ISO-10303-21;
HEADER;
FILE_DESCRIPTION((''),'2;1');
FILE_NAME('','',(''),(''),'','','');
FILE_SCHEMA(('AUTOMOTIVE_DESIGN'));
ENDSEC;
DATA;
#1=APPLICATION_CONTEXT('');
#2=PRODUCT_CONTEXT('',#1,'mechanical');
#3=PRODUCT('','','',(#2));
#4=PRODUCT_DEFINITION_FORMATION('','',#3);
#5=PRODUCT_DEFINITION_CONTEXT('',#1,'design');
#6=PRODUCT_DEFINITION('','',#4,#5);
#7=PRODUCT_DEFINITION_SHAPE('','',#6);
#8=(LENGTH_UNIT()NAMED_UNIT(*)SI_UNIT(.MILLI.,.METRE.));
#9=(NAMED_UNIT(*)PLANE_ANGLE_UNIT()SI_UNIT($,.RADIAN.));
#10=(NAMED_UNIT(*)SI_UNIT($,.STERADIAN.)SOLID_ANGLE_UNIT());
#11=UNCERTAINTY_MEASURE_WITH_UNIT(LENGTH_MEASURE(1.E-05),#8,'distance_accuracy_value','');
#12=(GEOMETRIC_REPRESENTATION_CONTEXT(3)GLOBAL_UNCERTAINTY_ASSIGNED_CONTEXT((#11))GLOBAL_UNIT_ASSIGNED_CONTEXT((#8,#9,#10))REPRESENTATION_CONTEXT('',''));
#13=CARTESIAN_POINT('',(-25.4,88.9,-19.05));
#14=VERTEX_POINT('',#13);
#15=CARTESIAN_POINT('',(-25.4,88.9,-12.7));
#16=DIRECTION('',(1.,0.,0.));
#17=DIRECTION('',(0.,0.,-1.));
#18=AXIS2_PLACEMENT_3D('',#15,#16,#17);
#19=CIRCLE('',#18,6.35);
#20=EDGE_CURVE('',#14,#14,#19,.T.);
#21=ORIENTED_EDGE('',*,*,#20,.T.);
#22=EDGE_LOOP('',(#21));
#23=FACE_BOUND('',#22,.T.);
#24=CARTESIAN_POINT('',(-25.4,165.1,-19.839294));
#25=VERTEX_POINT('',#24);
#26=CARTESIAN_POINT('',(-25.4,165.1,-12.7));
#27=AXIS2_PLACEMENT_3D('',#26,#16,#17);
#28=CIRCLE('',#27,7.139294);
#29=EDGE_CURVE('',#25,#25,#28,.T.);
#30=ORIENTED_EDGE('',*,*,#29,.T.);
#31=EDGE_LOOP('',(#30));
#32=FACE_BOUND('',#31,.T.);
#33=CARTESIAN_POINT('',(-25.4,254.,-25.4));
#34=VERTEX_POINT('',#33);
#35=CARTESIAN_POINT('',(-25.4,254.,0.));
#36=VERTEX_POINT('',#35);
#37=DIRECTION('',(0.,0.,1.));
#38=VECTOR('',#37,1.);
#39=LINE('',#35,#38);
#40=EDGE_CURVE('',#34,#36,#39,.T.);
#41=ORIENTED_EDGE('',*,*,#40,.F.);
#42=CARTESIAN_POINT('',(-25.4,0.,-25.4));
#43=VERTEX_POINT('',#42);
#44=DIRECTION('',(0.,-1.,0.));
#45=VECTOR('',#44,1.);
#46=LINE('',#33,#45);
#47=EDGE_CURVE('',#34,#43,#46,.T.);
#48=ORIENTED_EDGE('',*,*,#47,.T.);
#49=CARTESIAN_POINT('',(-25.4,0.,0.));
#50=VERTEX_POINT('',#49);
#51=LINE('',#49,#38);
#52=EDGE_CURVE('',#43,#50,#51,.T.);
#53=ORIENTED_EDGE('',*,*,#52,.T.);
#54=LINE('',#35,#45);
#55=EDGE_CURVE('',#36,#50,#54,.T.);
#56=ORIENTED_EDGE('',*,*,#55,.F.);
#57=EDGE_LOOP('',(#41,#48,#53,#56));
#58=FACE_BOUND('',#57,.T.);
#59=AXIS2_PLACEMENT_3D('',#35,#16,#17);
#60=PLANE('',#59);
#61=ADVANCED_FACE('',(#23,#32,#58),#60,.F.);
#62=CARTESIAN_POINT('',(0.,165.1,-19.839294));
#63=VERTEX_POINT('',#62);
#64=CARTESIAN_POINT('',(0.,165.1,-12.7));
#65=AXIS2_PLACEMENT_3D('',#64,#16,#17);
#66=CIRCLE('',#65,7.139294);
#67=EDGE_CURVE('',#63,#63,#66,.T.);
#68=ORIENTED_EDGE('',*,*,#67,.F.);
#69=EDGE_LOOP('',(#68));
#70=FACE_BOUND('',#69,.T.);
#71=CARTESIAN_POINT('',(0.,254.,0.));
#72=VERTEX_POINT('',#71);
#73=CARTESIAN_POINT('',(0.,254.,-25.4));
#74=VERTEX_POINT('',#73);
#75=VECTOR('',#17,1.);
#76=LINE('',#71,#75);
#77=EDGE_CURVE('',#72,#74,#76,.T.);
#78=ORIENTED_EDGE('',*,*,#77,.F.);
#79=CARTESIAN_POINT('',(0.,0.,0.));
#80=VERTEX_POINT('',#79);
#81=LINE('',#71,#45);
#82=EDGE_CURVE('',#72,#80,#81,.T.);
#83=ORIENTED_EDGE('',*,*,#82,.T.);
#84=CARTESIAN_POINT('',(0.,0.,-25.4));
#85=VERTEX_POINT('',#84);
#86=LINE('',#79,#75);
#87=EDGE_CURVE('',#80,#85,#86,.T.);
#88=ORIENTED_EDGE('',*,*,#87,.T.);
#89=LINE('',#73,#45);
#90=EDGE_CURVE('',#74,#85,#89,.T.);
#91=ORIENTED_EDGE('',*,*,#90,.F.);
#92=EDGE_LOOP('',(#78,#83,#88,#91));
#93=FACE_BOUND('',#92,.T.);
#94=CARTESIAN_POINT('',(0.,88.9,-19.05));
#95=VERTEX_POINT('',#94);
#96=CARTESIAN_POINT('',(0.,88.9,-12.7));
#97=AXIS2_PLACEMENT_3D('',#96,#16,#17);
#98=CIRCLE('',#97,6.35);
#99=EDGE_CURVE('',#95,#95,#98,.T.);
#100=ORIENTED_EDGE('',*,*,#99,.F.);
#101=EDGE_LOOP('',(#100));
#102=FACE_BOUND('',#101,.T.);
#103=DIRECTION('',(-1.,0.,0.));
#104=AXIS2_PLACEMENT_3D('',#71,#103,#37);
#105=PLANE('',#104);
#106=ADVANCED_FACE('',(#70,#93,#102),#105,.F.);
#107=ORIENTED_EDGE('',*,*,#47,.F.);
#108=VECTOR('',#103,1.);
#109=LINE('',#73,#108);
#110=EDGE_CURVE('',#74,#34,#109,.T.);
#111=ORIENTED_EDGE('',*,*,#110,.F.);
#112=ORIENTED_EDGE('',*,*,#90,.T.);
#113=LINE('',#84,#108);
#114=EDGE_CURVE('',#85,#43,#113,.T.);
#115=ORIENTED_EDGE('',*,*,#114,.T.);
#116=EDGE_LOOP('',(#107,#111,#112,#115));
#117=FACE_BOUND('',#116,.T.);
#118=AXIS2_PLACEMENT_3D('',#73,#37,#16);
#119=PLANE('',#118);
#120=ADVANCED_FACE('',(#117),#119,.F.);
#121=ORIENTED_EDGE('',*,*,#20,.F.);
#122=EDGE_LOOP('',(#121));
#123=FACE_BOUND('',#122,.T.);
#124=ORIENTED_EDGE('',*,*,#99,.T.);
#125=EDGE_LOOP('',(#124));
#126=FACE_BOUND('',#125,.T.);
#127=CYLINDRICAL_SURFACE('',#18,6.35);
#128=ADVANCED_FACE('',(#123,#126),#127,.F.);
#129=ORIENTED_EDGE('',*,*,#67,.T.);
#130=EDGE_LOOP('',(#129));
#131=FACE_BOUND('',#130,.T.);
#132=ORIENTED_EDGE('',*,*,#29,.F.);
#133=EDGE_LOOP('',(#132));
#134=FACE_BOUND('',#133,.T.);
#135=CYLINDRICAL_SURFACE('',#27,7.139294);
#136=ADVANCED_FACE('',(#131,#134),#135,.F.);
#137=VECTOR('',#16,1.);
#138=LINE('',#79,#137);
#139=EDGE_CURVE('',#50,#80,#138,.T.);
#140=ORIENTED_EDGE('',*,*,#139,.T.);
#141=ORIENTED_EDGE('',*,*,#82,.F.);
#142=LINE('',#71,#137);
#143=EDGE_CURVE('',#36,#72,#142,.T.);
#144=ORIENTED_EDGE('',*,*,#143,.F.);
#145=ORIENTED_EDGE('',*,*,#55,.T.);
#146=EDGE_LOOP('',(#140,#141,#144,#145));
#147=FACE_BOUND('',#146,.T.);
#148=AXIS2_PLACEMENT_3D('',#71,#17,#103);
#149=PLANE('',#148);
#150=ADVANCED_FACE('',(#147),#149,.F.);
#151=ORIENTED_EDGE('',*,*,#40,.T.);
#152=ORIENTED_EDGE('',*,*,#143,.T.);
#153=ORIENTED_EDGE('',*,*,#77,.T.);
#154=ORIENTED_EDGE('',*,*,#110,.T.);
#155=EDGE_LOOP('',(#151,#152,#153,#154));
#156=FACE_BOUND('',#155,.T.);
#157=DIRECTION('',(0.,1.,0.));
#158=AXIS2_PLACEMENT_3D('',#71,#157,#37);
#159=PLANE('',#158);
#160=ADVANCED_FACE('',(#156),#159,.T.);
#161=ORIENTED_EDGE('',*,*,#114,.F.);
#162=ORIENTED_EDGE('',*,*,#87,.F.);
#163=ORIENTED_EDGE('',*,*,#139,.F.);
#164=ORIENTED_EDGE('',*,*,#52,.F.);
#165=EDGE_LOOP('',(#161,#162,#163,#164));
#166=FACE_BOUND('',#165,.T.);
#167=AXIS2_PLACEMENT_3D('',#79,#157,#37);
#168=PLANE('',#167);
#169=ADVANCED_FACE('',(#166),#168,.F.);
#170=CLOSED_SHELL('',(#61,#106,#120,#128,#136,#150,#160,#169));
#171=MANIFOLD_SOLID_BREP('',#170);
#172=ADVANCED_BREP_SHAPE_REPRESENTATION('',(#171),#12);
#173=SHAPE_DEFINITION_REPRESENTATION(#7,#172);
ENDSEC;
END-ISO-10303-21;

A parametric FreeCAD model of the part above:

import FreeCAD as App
import Part
import Sketcher
from FreeCAD import Vector
Q = App.Units.Quantity


def add_polygon(sketch, points):
    """Adds a closed chain of lines whose ends are joined by coincident constraints."""
    first, n = sketch.GeometryCount, len(points)
    for a, b in zip(points, points[1:] + points[:1]):
        sketch.addGeometry(Part.LineSegment(App.Vector(*a, 0), App.Vector(*b, 0)), False)
    for i in range(n):
        sketch.addConstraint(Sketcher.Constraint("Coincident", first + i, 2, first + (i + 1) % n, 1))

doc = App.newDocument("Part")
params = doc.addObject("Spreadsheet::Sheet", "Params")
for row, (alias, value) in enumerate([
    ("sketch1_width", "1 in"),
    ("pad1_length", "10 in"),
    ("sketch2_diameter", "0.5 in"),
], start=1):
    params.set(f"A{row}", alias)
    params.set(f"B{row}", "=" + value)
    params.setAlias(f"B{row}", alias)

body = doc.addObject("PartDesign::Body", "Body")

# Sketch on XZ plane
sketch1 = body.newObject("Sketcher::SketchObject", "Sketch")
sketch1.AttachmentSupport = (doc.getObject("XZ_Plane"), [""])
sketch1.MapMode = "FlatFace"
add_polygon(sketch1, [(-25.4, -25.4), (-25.4, 0), (0, 0), (0, -25.4)])  # lines 0-3
sketch1.addConstraint([
    Sketcher.Constraint("Vertical", 0),
    Sketcher.Constraint("Horizontal", 1),
    Sketcher.Constraint("Vertical", 2),
    Sketcher.Constraint("Horizontal", 3),
    Sketcher.Constraint("Coincident", 1, 2, -1, 1),
    Sketcher.Constraint("Equal", 3, 0),
    Sketcher.Constraint("DistanceX", 1, 1, 1, 2, Q("1 in")),
])
sketch1.setExpression("Constraints[10]", "Params.sketch1_width")
pad1 = body.newObject("PartDesign::Pad", "Pad")
pad1.Profile = sketch1
pad1.setExpression("Length", "Params.pad1_length")
pad1.Reversed = True

# Sketch on YZ plane
sketch2 = body.newObject("Sketcher::SketchObject", "Sketch001")
sketch2.AttachmentSupport = (doc.getObject("YZ_Plane"), [""])
sketch2.MapMode = "FlatFace"
sketch2.addGeometry([
    Part.Circle(Vector(165.1, -12.7, 0), Vector(0, 0, 1), 7.139294),
    Part.Circle(Vector(88.9, -12.7, 0), Vector(0, 0, 1), 6.35),
], False)
sketch2.addConstraint([
    Sketcher.Constraint("Horizontal", 0, 3, 1, 3),
    Sketcher.Constraint("Diameter", 1, Q("0.5 in")),
    Sketcher.Constraint("DistanceX", 1, 3, 0, 3, Q("3 in")),
    Sketcher.Constraint("DistanceX", -1, 1, 0, 3, Q("6.5 in")),
    Sketcher.Constraint("DistanceY", 0, 3, -1, 1, Q("0.5 in")),
    Sketcher.Constraint("Diameter", 0, Q("14.278588 mm")),
])
sketch2.setExpression("Constraints[1]", "Params.sketch2_diameter")
pocket1 = body.newObject("PartDesign::Pocket", "Pocket")
pocket1.Profile = sketch2
pocket1.Type = "ThroughAll"

doc.recompute()
